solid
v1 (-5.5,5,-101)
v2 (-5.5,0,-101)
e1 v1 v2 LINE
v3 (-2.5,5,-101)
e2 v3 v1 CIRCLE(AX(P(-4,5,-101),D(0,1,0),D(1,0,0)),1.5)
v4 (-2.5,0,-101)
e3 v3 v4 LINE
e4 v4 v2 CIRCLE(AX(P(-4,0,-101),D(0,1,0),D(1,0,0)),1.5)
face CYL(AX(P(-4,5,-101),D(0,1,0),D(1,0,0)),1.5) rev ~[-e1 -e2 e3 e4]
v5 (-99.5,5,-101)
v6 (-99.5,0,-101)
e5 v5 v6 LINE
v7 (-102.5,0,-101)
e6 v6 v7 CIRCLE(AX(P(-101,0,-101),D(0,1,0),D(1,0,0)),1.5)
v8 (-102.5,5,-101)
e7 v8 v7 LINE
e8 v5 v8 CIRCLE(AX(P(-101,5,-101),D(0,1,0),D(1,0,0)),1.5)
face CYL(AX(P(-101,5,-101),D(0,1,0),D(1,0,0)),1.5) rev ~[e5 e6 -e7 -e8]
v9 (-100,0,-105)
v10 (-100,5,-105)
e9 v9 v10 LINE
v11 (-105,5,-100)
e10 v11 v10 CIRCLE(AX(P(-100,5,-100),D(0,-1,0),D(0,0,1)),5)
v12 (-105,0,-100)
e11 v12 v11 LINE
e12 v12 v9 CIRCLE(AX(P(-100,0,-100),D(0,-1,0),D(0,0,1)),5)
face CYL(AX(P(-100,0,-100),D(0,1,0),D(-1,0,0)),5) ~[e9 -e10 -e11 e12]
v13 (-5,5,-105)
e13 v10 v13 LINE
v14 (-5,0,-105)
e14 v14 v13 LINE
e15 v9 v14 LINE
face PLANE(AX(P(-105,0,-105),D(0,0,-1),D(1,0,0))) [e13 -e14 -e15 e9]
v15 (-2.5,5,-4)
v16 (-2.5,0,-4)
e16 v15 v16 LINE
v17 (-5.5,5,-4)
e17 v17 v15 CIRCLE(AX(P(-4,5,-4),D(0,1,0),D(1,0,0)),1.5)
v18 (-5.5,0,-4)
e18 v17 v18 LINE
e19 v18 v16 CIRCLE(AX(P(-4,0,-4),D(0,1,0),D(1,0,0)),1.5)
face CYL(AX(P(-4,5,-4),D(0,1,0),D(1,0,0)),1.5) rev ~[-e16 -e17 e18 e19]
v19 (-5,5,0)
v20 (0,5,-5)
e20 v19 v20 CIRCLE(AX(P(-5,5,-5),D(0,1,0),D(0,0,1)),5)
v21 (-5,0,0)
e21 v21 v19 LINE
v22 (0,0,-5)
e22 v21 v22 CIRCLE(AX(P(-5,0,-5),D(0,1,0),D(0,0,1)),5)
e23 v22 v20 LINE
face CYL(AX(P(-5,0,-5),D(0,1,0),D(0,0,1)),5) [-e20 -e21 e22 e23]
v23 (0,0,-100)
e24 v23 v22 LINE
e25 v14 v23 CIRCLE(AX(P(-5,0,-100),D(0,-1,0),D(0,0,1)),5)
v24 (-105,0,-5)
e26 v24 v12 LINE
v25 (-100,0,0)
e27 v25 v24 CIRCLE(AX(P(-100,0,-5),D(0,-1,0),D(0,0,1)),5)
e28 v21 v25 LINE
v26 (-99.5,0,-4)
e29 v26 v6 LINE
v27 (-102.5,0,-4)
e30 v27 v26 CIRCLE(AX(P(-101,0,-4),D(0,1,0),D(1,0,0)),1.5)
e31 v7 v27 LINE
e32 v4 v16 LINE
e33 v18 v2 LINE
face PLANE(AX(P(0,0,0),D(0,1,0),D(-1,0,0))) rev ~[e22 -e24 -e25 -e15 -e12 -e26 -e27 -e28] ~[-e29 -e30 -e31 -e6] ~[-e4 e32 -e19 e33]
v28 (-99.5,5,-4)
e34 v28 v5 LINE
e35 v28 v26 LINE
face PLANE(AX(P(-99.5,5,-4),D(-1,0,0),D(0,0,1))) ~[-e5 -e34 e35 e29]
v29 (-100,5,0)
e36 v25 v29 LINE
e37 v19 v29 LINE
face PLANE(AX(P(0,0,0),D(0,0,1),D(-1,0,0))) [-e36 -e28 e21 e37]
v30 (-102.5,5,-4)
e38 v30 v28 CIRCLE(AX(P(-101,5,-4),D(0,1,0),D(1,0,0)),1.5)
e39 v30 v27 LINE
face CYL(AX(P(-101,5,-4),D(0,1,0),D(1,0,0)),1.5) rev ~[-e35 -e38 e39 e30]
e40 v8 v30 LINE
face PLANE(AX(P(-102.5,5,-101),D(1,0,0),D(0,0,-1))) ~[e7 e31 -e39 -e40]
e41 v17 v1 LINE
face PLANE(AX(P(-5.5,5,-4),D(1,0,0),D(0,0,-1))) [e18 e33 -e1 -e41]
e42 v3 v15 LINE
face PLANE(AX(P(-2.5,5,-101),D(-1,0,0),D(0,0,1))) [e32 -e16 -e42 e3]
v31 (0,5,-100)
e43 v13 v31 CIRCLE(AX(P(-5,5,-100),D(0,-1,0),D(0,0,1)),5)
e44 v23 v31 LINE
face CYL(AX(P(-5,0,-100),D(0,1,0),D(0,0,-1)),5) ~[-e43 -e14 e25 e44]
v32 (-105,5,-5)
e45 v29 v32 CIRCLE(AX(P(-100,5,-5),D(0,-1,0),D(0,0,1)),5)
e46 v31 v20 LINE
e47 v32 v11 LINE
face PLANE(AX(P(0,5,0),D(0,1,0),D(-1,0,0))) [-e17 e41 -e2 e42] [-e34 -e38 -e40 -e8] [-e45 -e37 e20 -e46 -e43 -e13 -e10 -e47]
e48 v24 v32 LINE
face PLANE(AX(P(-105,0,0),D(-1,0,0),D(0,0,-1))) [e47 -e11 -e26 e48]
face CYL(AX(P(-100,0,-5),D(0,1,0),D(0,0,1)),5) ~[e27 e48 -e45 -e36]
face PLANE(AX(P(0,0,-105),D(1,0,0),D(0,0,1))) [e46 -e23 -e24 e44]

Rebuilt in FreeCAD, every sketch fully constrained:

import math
import FreeCAD as App
import Part
import Sketcher

V = App.Vector
Q = App.Units.Quantity


def edges_at(feature, points):
    """Names of the edges that pass closest to the given points."""
    edges = feature.Shape.Edges
    near = lambda p: min(range(len(edges)), key=lambda i: edges[i].distToShape(Part.Vertex(*p))[0])
    return sorted({f"Edge{near(p) + 1}" for p in points})


def add_polygon(sketch, points):
    """Adds a closed chain of lines whose ends are joined by coincident constraints."""
    first, n = sketch.GeometryCount, len(points)
    for a, b in zip(points, points[1:] + points[:1]):
        sketch.addGeometry(Part.LineSegment(App.Vector(*a, 0), App.Vector(*b, 0)), False)
    for i in range(n):
        sketch.addConstraint(Sketcher.Constraint("Coincident", first + i, 2, first + (i + 1) % n, 1))

doc = App.newDocument("Part")
body = doc.addObject("PartDesign::Body", "Body")

sketch1 = body.newObject("Sketcher::SketchObject", "Sketch")
sketch1.AttachmentSupport = (doc.getObject("XZ_Plane"), [""])
sketch1.MapMode = "FlatFace"
add_polygon(sketch1, [(-105, 0), (0, 0), (0, -105), (-105, -105)])
sketch1.addConstraint([
    Sketcher.Constraint("Horizontal", 0),
    Sketcher.Constraint("Vertical", 1),
    Sketcher.Constraint("Horizontal", 2),
    Sketcher.Constraint("Vertical", 3),
    Sketcher.Constraint("Coincident", 0, 2, -1, 1),
    Sketcher.Constraint("Equal", 2, 1),
    Sketcher.Constraint("DistanceX", 0, 1, 0, 2, Q("105 mm")),
])
pad1 = body.newObject("PartDesign::Pad", "Pad")
pad1.Profile = sketch1
pad1.Length = 5
pad1.Reversed = True
doc.recompute()

fillet = body.newObject("PartDesign::Fillet", "Fillet")
fillet.Base = (pad1, edges_at(pad1, [
    (-105, 2.5, -105),
    (0, 2.5, 0),
    (0, 2.5, -105),
    (-105, 2.5, 0),
]))
fillet.Radius = 5

sketch2 = body.newObject("Sketcher::SketchObject", "Sketch001")
sketch2.AttachmentSupport = (doc.getObject("XZ_Plane"), [""])
sketch2.MapMode = "FlatFace"
sketch2.AttachmentOffset = App.Placement(V(0, 0, -5), App.Rotation())
sketch2.addGeometry([
    Part.Circle(V(-101, -101, 0), V(0, 0, 1), 1.5),
    Part.Circle(V(-4, -101, 0), V(0, 0, 1), 1.5),
    Part.Circle(V(-4, -4, 0), V(0, 0, 1), 1.5),
    Part.Circle(V(-101, -4, 0), V(0, 0, 1), 1.5),
], False)
sketch2.addConstraint([
    Sketcher.Constraint("Equal", 0, 1),
    Sketcher.Constraint("Equal", 1, 2),
    Sketcher.Constraint("Equal", 2, 3),
    Sketcher.Constraint("Horizontal", 0, 3, 1, 3),
    Sketcher.Constraint("Horizontal", 2, 3, 3, 3),
    Sketcher.Constraint("Vertical", 1, 3, 2, 3),
    Sketcher.Constraint("Vertical", 0, 3, 3, 3),
    Sketcher.Constraint("Diameter", 0, Q("3 mm")),
    Sketcher.Constraint("DistanceX", 1, 3, -1, 1, Q("4 mm")),
    Sketcher.Constraint("DistanceY", 2, 3, -1, 1, Q("4 mm")),
    Sketcher.Constraint("DistanceX", 0, 3, -1, 1, Q("101 mm")),
    Sketcher.Constraint("DistanceY", 0, 3, -1, 1, Q("101 mm")),
])
pocket1 = body.newObject("PartDesign::Pocket", "Pocket")
pocket1.Profile = sketch2
pocket1.Length = 10
pocket1.Reversed = True

sketch3 = body.newObject("Sketcher::SketchObject", "Sketch002")
sketch3.AttachmentSupport = (doc.getObject("XZ_Plane"), [""])
sketch3.MapMode = "FlatFace"
sketch3.AttachmentOffset = App.Placement(V(0, 0, -5), App.Rotation())
sketch3.addGeometry([
    Part.ArcOfCircle(Part.Circle(V(-4, -4, 0), V(0, 0, 1), 1.5), math.radians(0), math.radians(180)),
    Part.LineSegment(V(-2.5, -4, 0), V(-2.5, -101, 0)),
    Part.ArcOfCircle(Part.Circle(V(-4, -101, 0), V(0, 0, 1), 1.5), math.radians(180), math.radians(360)),
    Part.LineSegment(V(-5.5, -101, 0), V(-5.5, -4, 0)),
], False)
sketch3.addConstraint([
    Sketcher.Constraint("Tangent", 0, 1, 1, 1),
    Sketcher.Constraint("Tangent", 1, 2, 2, 2),
    Sketcher.Constraint("Tangent", 2, 1, 3, 1),
    Sketcher.Constraint("Tangent", 3, 2, 0, 2),
    Sketcher.Constraint("Vertical", 1),
    Sketcher.Constraint("Vertical", 3),
    Sketcher.Constraint("Radius", 0, Q("1.5 mm")),
    Sketcher.Constraint("DistanceY", 1, 2, 1, 1, Q("97 mm")),
    Sketcher.Constraint("DistanceX", 0, 3, -1, 1, Q("4 mm")),
    Sketcher.Constraint("DistanceY", 0, 3, -1, 1, Q("4 mm")),
])
pocket2 = body.newObject("PartDesign::Pocket", "Pocket001")
pocket2.Profile = sketch3
pocket2.Length = 10
pocket2.Reversed = True
doc.recompute()

datumplane = body.newObject("PartDesign::Plane", "DatumPlane")
datumplane.AttachmentSupport = (doc.getObject("YZ_Plane"), [""])
datumplane.MapMode = "FlatFace"
datumplane.AttachmentOffset = App.Placement(V(0, 0, -52.5), App.Rotation())
mirrored = body.newObject("PartDesign::Mirrored", "Mirrored")
mirrored.Originals = [pocket2]
mirrored.MirrorPlane = (datumplane, [""])
body.Tip = mirrored

doc.recompute()
